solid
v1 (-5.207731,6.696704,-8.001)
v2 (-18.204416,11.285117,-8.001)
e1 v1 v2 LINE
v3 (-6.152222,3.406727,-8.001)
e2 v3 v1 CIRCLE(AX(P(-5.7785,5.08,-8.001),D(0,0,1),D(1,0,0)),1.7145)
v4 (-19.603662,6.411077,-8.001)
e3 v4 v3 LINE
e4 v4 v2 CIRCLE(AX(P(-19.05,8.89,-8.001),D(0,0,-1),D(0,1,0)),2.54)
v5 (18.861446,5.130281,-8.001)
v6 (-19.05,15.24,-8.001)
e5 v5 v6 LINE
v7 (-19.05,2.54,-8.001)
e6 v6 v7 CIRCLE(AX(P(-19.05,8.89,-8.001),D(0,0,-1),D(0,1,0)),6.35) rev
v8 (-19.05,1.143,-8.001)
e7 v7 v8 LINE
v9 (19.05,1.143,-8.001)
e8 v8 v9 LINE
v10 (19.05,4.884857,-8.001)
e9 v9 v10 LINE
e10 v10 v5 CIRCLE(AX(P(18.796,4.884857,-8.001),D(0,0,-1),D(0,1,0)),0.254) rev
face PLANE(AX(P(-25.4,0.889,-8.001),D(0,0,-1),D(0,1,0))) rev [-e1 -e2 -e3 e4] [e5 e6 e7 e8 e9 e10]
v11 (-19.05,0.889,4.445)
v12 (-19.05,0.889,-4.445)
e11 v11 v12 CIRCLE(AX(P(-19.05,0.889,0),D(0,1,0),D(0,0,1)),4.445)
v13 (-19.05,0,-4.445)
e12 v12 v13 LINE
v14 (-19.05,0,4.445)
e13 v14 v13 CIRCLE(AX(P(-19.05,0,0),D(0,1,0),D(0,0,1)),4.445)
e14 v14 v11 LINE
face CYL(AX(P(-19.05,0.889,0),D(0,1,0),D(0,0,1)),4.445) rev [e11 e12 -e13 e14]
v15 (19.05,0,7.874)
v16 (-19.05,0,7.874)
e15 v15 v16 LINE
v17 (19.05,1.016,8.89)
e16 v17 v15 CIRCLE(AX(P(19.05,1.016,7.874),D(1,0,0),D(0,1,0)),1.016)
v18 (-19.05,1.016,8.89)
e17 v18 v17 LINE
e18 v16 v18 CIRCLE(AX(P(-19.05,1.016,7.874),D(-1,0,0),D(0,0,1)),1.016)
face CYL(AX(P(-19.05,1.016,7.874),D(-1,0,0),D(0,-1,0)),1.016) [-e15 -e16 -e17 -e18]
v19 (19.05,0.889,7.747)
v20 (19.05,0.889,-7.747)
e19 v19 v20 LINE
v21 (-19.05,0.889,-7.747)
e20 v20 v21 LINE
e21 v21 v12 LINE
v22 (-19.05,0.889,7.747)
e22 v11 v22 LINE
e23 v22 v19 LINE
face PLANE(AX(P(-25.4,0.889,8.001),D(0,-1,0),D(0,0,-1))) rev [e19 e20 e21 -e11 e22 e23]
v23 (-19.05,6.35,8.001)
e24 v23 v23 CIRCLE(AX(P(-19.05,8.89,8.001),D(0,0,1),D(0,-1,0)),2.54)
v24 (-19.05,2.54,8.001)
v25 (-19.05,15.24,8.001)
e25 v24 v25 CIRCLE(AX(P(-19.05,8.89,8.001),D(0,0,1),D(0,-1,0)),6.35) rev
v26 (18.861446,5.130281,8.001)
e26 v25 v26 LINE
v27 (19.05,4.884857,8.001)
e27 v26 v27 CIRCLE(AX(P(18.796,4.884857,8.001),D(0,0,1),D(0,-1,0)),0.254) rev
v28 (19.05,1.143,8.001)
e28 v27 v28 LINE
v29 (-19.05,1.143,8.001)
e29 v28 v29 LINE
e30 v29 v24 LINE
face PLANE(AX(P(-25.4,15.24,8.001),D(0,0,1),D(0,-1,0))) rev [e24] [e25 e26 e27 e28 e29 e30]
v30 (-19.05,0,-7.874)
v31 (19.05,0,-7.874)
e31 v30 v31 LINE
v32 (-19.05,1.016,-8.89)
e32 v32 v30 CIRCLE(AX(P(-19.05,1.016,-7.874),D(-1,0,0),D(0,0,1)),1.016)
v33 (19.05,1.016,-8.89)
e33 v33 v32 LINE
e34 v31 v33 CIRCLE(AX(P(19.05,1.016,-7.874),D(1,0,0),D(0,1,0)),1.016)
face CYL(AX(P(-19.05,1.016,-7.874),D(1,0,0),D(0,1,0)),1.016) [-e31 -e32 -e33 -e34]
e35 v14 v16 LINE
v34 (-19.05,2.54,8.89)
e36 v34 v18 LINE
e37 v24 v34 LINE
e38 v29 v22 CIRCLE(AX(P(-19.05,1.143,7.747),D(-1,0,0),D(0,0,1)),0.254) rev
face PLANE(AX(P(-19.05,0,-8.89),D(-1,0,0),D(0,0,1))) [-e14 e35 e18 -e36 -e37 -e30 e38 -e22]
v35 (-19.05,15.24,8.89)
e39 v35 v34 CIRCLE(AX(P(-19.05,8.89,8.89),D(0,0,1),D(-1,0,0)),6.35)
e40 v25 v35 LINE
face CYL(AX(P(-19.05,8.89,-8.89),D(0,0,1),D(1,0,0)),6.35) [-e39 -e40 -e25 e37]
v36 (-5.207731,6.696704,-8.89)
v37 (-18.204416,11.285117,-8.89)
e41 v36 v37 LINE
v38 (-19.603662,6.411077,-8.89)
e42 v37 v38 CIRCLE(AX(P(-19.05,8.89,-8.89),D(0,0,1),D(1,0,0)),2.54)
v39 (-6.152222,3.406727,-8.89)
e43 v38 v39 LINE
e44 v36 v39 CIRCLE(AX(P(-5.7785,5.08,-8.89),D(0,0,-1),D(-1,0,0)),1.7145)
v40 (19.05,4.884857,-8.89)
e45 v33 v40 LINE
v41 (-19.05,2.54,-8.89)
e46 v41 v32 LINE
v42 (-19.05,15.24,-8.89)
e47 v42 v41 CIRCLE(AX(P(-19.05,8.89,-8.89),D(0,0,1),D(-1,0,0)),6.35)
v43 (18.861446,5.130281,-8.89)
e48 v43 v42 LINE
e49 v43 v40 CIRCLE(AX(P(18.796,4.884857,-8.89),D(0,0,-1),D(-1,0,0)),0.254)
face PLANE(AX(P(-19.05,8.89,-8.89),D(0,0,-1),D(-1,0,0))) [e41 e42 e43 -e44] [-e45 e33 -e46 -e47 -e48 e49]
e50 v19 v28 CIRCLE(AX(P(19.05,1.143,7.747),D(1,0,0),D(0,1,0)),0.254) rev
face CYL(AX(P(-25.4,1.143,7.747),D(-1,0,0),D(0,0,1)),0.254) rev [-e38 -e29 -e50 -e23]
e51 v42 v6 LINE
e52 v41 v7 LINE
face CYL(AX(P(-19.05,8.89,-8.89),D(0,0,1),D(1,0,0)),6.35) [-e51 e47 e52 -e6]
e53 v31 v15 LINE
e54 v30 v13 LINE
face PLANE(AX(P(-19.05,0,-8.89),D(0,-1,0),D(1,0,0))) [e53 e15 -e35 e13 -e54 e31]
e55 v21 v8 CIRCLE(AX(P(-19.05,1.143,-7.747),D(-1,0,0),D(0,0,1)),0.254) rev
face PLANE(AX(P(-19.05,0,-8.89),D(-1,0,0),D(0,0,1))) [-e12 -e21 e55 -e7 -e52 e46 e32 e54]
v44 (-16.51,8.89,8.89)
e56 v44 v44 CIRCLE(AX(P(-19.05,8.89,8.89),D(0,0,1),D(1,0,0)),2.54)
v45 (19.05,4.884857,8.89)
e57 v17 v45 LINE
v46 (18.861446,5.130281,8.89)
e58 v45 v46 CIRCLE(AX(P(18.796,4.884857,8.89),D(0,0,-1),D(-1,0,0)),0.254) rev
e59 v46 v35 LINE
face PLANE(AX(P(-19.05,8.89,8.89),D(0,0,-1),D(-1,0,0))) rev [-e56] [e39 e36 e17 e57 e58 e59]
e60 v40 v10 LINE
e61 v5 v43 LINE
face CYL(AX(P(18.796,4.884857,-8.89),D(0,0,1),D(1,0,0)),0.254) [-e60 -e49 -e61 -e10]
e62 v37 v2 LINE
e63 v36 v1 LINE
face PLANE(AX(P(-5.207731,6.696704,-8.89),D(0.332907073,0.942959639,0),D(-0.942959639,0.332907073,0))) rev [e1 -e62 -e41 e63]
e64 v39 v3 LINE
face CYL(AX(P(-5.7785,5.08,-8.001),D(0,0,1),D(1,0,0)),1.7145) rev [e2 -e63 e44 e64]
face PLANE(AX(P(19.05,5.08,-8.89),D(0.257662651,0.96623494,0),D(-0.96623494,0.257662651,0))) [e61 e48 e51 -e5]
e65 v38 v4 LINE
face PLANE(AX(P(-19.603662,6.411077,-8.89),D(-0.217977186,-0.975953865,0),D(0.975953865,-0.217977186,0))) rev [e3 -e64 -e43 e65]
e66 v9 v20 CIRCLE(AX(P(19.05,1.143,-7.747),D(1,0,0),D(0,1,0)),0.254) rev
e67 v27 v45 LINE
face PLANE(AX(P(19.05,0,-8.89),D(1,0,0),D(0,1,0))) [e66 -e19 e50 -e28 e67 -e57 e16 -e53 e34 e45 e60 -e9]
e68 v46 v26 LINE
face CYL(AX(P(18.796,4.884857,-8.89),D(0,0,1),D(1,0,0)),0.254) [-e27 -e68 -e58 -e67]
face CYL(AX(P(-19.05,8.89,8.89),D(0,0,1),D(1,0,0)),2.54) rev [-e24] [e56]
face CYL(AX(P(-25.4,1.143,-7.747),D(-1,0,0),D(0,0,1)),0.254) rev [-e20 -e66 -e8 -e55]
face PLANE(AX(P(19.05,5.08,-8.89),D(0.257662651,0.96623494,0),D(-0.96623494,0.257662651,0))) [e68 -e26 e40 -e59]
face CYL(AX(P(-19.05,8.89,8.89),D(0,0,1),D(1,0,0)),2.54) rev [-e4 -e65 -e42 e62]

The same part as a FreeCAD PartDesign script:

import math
import FreeCAD as App
import Part
import Sketcher
Q = App.Units.Quantity


def edges_at(feature, points):
    """Names of the edges that pass closest to the given points."""
    edges = feature.Shape.Edges
    near = lambda p: min(range(len(edges)), key=lambda i: edges[i].distToShape(Part.Vertex(*p))[0])
    return sorted({f"Edge{near(p) + 1}" for p in points})


def add_polygon(sketch, points):
    """Adds a closed chain of lines whose ends are joined by coincident constraints."""
    first, n = sketch.GeometryCount, len(points)
    for a, b in zip(points, points[1:] + points[:1]):
        sketch.addGeometry(Part.LineSegment(App.Vector(*a, 0), App.Vector(*b, 0)), False)
    for i in range(n):
        sketch.addConstraint(Sketcher.Constraint("Coincident", first + i, 2, first + (i + 1) % n, 1))

doc = App.newDocument("Part")
body = doc.addObject("PartDesign::Body", "Body")

sketch1 = body.newObject("Sketcher::SketchObject", "Sketch")
sketch1.AttachmentSupport = (doc.getObject("XY_Plane"), [""])
sketch1.MapMode = "FlatFace"
sketch1.addGeometry([
    Part.LineSegment(App.Vector(-19.1, 0, 0), App.Vector(19.1, 0, 0)),
    Part.LineSegment(App.Vector(19.1, 0, 0), App.Vector(19.1, 5.1, 0)),
    Part.LineSegment(App.Vector(19.1, 5.1, 0), App.Vector(-19.1, 15.2, 0)),
    Part.ArcOfCircle(Part.Circle(App.Vector(-19.1, 8.9, 0), App.Vector(0, 0, 1), 6.3), math.radians(90), math.radians(270)),
    Part.LineSegment(App.Vector(-19.1, 2.5, 0), App.Vector(-19.1, 0, 0)),
], False)
sketch1.addConstraint([
    Sketcher.Constraint("Coincident", 0, 2, 1, 1),
    Sketcher.Constraint("Coincident", 1, 2, 2, 1),
    Sketcher.Constraint("Coincident", 2, 2, 3, 1),
    Sketcher.Constraint("Coincident", 3, 2, 4, 1),
    Sketcher.Constraint("Coincident", 4, 2, 0, 1),
    Sketcher.Constraint("Horizontal", 0),
    Sketcher.Constraint("Vertical", 1),
    Sketcher.Constraint("Vertical", 4),
    Sketcher.Constraint("Symmetric", 0, 2, 4, 2, -1, 1),
    Sketcher.Constraint("Vertical", 3, 3, 2, 2),
    Sketcher.Constraint("Vertical", 2, 2, 3, 2),
    Sketcher.Constraint("Radius", 3, Q("0.25 in")),
    Sketcher.Constraint("DistanceX", 0, 1, 0, 2, Q("1.5 in")),
    Sketcher.Constraint("DistanceY", 1, 1, 1, 2, Q("0.2 in")),
    Sketcher.Constraint("DistanceY", 4, 2, 4, 1, Q("0.1 in")),
])
pad1 = body.newObject("PartDesign::Pad", "Pad")
pad1.Profile = sketch1
pad1.Type = "TwoLengths"
pad1.Length = Q("0.35 in")
pad1.Length2 = Q("0.35 in")

sketch2 = body.newObject("Sketcher::SketchObject", "Sketch001")
sketch2.AttachmentSupport = (doc.getObject("YZ_Plane"), [""])
sketch2.MapMode = "FlatFace"
add_polygon(sketch2, [(15, 8), (1, 8), (1, -8), (15, -8)])
sketch2.addConstraint([
    Sketcher.Constraint("Horizontal", 0),
    Sketcher.Constraint("Vertical", 1),
    Sketcher.Constraint("Horizontal", 2),
    Sketcher.Constraint("Vertical", 3),
    Sketcher.Constraint("DistanceY", 1, 2, 1, 1, Q("0.63 in")),
    Sketcher.Constraint("DistanceX", -1, 1, 2, 2, Q("0.6 in")),
    Sketcher.Constraint("DistanceX", 0, 2, 0, 1, Q("0.565 in")),
    Sketcher.Constraint("DistanceY", -1, 1, 0, 2, Q("0.315 in")),
])
pocket1 = body.newObject("PartDesign::Pocket", "Pocket")
pocket1.Profile = sketch2
pocket1.Type = "ThroughAll"
pocket1.Midplane = True

sketch3 = body.newObject("Sketcher::SketchObject", "Sketch002")
sketch3.AttachmentSupport = (doc.getObject("XY_Plane"), [""])
sketch3.MapMode = "FlatFace"
sketch3.AttachmentOffset = App.Placement(App.Vector(0, 0, 0.35 * 25.4), App.Rotation())
sketch3.addGeometry(Part.Circle(App.Vector(-19.1, 8.9, 0), App.Vector(0, 0, 1), 2.5), False)
sketch3.addConstraint([
    Sketcher.Constraint("Diameter", 0, Q("0.2 in")),
    Sketcher.Constraint("DistanceX", 0, 3, -1, 1, Q("0.75 in")),
    Sketcher.Constraint("DistanceY", -1, 1, 0, 3, Q("0.35 in")),
])
doc.recompute()
hole = body.newObject("PartDesign::Hole", "Hole")
hole.Profile = sketch3
hole.ThreadType = "None"
hole.Diameter = Q("0.2 in")
hole.DepthType = "ThroughAll"

sketch4 = body.newObject("Sketcher::SketchObject", "Sketch003")
sketch4.AttachmentSupport = (doc.getObject("XZ_Plane"), [""])
sketch4.MapMode = "FlatFace"
sketch4.AttachmentOffset = App.Placement(App.Vector(0, 0, -0.035 * 25.4), App.Rotation())
sketch4.addGeometry(Part.Circle(App.Vector(-19.1, 0, 0), App.Vector(0, 0, 1), 4.4), False)
sketch4.addConstraint([
    Sketcher.Constraint("PointOnObject", 0, 3, -1),
    Sketcher.Constraint("Diameter", 0, Q("0.35 in")),
    Sketcher.Constraint("DistanceX", 0, 3, -1, 1, Q("0.75 in")),
])
doc.recompute()
hole2 = body.newObject("PartDesign::Hole", "Hole001")
hole2.Profile = sketch4
hole2.ThreadType = "None"
hole2.Diameter = Q("0.35 in")
hole2.DepthType = "ThroughAll"
hole2.Reversed = True

sketch5 = body.newObject("Sketcher::SketchObject", "Sketch004")
sketch5.AttachmentSupport = (doc.getObject("XY_Plane"), [""])
sketch5.MapMode = "FlatFace"
sketch5.AttachmentOffset = App.Placement(App.Vector(0, 0, -0.315 * 25.4), App.Rotation())
sketch5.addGeometry(Part.Circle(App.Vector(-5.8, 5.1, 0), App.Vector(0, 0, 1), 1.7), False)
sketch5.addConstraint([
    Sketcher.Constraint("Diameter", 0, Q("0.135 in")),
    Sketcher.Constraint("DistanceY", -1, 1, 0, 3, Q("0.2 in")),
    Sketcher.Constraint("DistanceX", 0, 3, -1, 1, Q("0.2275 in")),
])
doc.recompute()
hole3 = body.newObject("PartDesign::Hole", "Hole002")
hole3.Profile = sketch5
hole3.ThreadType = "None"
hole3.Diameter = Q("0.135 in")
hole3.DepthType = "Dimension"
hole3.Depth = Q("0.035 in")
hole3.DrillPoint = "Flat"

sketch6 = body.newObject("Sketcher::SketchObject", "Sketch005")
sketch6.AttachmentSupport = (doc.getObject("XY_Plane"), [""])
sketch6.MapMode = "FlatFace"
sketch6.AttachmentOffset = App.Placement(App.Vector(0, 0, -0.315 * 25.4), App.Rotation())
add_polygon(sketch6, [(-19.6, 6.4), (-6.2, 3.4), (-5.2, 6.7), (-18.2, 11.3)])
sketch6.addConstraint([
    Sketcher.Constraint("Parallel", 1, 3),
    Sketcher.Constraint("Equal", 0, 2),
    Sketcher.Constraint("DistanceX", 0, 2, -1, 1, Q("6.152222 mm")),
    Sketcher.Constraint("DistanceX", 1, 2, -1, 1, Q("5.207731 mm")),
    Sketcher.Constraint("DistanceY", 0, 2, 2, 2, Q("7.87839 mm")),
    Sketcher.Constraint("DistanceY", 3, 2, 2, 2, Q("4.87404 mm")),
    Sketcher.Constraint("DistanceX", 3, 2, 0, 2, Q("13.45144 mm")),
    Sketcher.Constraint("DistanceY", -1, 1, 0, 2, Q("3.406727 mm")),
])
pocket2 = body.newObject("PartDesign::Pocket", "Pocket001")
pocket2.Profile = sketch6
pocket2.Type = "ThroughAll"
doc.recompute()

fillet = body.newObject("PartDesign::Fillet", "Fillet")
fillet.Base = (pocket2, edges_at(pocket2, [
    (19.05, 5.08, 8.445),
    (0, 0.889, -8.001),
    (0, 0.889, 8.001),
    (19.05, 5.08, -8.445),
]))
fillet.Radius = Q("0.01 in")
doc.recompute()

fillet2 = body.newObject("PartDesign::Fillet", "Fillet001")
fillet2.Base = (fillet, edges_at(fillet, [(0, 0, 8.89), (0, 0, -8.89)]))
fillet2.Radius = Q("0.04 in")

doc.recompute()
